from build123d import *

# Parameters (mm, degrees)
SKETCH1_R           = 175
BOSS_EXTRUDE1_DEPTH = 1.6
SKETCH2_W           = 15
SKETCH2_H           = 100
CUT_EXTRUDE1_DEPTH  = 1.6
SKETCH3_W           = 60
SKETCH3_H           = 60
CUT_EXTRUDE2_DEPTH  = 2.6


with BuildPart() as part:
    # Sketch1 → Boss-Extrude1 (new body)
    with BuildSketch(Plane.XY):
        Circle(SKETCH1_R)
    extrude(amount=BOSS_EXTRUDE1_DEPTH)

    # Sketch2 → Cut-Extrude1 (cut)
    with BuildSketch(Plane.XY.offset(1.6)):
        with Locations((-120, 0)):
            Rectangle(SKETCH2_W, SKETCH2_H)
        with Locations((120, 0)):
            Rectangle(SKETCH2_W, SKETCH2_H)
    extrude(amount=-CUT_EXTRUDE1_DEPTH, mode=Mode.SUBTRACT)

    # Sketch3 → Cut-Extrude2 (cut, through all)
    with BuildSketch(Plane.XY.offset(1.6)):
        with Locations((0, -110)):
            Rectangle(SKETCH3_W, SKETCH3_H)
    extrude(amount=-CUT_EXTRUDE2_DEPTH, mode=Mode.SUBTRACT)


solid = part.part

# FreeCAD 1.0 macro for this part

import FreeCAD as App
import Part
import Sketcher

V = App.Vector
Q = App.Units.Quantity

doc = App.newDocument("Part")
body = doc.addObject("PartDesign::Body", "Body")

# Sketch on XY plane
sketch1 = doc.addObject("Sketcher::SketchObject", "Sketch")
body.addObject(sketch1)
sketch1.AttachmentSupport = (doc.XY_Plane, [""])
sketch1.MapMode = "FlatFace"
sketch1.addGeometry(Part.Circle(V(0, 0, 0), V(0, 0, 1), 175), False)
sketch1.addConstraint([
    Sketcher.Constraint("Coincident", 0, 3, -1, 1),
    Sketcher.Constraint("Diameter", 0, Q("350 mm")),
])
pad1 = doc.addObject("PartDesign::Pad", "Pad")
body.addObject(pad1)
pad1.Profile = sketch1
pad1.Length = 1.6

# Sketch on XY plane
sketch2 = doc.addObject("Sketcher::SketchObject", "Sketch001")
body.addObject(sketch2)
sketch2.AttachmentSupport = (doc.XY_Plane, [""])
sketch2.MapMode = "FlatFace"
sketch2.AttachmentOffset = App.Placement(V(0, 0, 1.6), App.Rotation())
sketch2.addGeometry([
    Part.LineSegment(V(-128, 50, 0), V(-128, -50, 0)),  # 0
    Part.LineSegment(V(-128, -50, 0), V(-112, -50, 0)),  # 1
    Part.LineSegment(V(-112, -50, 0), V(-112, 50, 0)),  # 2
    Part.LineSegment(V(-112, 50, 0), V(-128, 50, 0)),  # 3
    Part.LineSegment(V(112, 50, 0), V(112, -50, 0)),  # 4
    Part.LineSegment(V(112, -50, 0), V(128, -50, 0)),  # 5
    Part.LineSegment(V(128, -50, 0), V(128, 50, 0)),  # 6
    Part.LineSegment(V(128, 50, 0), V(112, 50, 0)),  # 7
], False)
sketch2.addConstraint([
    Sketcher.Constraint("Coincident", 0, 2, 1, 1),
    Sketcher.Constraint("Coincident", 1, 2, 2, 1),
    Sketcher.Constraint("Coincident", 2, 2, 3, 1),
    Sketcher.Constraint("Coincident", 3, 2, 0, 1),
    Sketcher.Constraint("Coincident", 4, 2, 5, 1),
    Sketcher.Constraint("Coincident", 5, 2, 6, 1),
    Sketcher.Constraint("Coincident", 6, 2, 7, 1),
    Sketcher.Constraint("Coincident", 7, 2, 4, 1),
    Sketcher.Constraint("Vertical", 0),
    Sketcher.Constraint("Horizontal", 1),
    Sketcher.Constraint("Vertical", 2),
    Sketcher.Constraint("Horizontal", 3),
    Sketcher.Constraint("Vertical", 4),
    Sketcher.Constraint("Horizontal", 5),
    Sketcher.Constraint("Vertical", 6),
    Sketcher.Constraint("Horizontal", 7),
    Sketcher.Constraint("Symmetric", 2, 2, 4, 2, -1, 1),
    Sketcher.Constraint("Symmetric", 0, 2, 6, 2, -1, 1),
    Sketcher.Constraint("Horizontal", 1, 2, 4, 2),
    Sketcher.Constraint("DistanceX", 1, 1, 1, 2, Q("15 mm")),
    Sketcher.Constraint("DistanceY", 0, 2, 0, 1, Q("100 mm")),
    Sketcher.Constraint("DistanceX", 1, 2, 4, 2, Q("225 mm")),
])
pocket1 = doc.addObject("PartDesign::Pocket", "Pocket")
body.addObject(pocket1)
pocket1.Profile = sketch2
pocket1.Length = 1.6

# Sketch on XY plane
sketch3 = doc.addObject("Sketcher::SketchObject", "Sketch002")
body.addObject(sketch3)
sketch3.AttachmentSupport = (doc.XY_Plane, [""])
sketch3.MapMode = "FlatFace"
sketch3.AttachmentOffset = App.Placement(V(0, 0, 1.6), App.Rotation())
sketch3.addGeometry([
    Part.LineSegment(V(-30, -80, 0), V(-30, -140, 0)),
    Part.LineSegment(V(-30, -140, 0), V(30, -140, 0)),
    Part.LineSegment(V(30, -140, 0), V(30, -80, 0)),
    Part.LineSegment(V(30, -80, 0), V(-30, -80, 0)),
], False)
sketch3.addConstraint([
    Sketcher.Constraint("Coincident", 0, 2, 1, 1),
    Sketcher.Constraint("Coincident", 1, 2, 2, 1),
    Sketcher.Constraint("Coincident", 2, 2, 3, 1),
    Sketcher.Constraint("Coincident", 3, 2, 0, 1),
    Sketcher.Constraint("Vertical", 0),
    Sketcher.Constraint("Horizontal", 1),
    Sketcher.Constraint("Vertical", 2),
    Sketcher.Constraint("Horizontal", 3),
    Sketcher.Constraint("Equal", 3, 0),
    Sketcher.Constraint("DistanceX", 1, 1, 1, 2, Q("60 mm")),
    Sketcher.Constraint("DistanceX", 0, 2, -1, 1, Q("30 mm")),
    Sketcher.Constraint("DistanceY", 0, 2, -1, 1, Q("140 mm")),
])
pocket2 = doc.addObject("PartDesign::Pocket", "Pocket001")
body.addObject(pocket2)
pocket2.Profile = sketch3
pocket2.Type = "ThroughAll"

doc.recompute()
